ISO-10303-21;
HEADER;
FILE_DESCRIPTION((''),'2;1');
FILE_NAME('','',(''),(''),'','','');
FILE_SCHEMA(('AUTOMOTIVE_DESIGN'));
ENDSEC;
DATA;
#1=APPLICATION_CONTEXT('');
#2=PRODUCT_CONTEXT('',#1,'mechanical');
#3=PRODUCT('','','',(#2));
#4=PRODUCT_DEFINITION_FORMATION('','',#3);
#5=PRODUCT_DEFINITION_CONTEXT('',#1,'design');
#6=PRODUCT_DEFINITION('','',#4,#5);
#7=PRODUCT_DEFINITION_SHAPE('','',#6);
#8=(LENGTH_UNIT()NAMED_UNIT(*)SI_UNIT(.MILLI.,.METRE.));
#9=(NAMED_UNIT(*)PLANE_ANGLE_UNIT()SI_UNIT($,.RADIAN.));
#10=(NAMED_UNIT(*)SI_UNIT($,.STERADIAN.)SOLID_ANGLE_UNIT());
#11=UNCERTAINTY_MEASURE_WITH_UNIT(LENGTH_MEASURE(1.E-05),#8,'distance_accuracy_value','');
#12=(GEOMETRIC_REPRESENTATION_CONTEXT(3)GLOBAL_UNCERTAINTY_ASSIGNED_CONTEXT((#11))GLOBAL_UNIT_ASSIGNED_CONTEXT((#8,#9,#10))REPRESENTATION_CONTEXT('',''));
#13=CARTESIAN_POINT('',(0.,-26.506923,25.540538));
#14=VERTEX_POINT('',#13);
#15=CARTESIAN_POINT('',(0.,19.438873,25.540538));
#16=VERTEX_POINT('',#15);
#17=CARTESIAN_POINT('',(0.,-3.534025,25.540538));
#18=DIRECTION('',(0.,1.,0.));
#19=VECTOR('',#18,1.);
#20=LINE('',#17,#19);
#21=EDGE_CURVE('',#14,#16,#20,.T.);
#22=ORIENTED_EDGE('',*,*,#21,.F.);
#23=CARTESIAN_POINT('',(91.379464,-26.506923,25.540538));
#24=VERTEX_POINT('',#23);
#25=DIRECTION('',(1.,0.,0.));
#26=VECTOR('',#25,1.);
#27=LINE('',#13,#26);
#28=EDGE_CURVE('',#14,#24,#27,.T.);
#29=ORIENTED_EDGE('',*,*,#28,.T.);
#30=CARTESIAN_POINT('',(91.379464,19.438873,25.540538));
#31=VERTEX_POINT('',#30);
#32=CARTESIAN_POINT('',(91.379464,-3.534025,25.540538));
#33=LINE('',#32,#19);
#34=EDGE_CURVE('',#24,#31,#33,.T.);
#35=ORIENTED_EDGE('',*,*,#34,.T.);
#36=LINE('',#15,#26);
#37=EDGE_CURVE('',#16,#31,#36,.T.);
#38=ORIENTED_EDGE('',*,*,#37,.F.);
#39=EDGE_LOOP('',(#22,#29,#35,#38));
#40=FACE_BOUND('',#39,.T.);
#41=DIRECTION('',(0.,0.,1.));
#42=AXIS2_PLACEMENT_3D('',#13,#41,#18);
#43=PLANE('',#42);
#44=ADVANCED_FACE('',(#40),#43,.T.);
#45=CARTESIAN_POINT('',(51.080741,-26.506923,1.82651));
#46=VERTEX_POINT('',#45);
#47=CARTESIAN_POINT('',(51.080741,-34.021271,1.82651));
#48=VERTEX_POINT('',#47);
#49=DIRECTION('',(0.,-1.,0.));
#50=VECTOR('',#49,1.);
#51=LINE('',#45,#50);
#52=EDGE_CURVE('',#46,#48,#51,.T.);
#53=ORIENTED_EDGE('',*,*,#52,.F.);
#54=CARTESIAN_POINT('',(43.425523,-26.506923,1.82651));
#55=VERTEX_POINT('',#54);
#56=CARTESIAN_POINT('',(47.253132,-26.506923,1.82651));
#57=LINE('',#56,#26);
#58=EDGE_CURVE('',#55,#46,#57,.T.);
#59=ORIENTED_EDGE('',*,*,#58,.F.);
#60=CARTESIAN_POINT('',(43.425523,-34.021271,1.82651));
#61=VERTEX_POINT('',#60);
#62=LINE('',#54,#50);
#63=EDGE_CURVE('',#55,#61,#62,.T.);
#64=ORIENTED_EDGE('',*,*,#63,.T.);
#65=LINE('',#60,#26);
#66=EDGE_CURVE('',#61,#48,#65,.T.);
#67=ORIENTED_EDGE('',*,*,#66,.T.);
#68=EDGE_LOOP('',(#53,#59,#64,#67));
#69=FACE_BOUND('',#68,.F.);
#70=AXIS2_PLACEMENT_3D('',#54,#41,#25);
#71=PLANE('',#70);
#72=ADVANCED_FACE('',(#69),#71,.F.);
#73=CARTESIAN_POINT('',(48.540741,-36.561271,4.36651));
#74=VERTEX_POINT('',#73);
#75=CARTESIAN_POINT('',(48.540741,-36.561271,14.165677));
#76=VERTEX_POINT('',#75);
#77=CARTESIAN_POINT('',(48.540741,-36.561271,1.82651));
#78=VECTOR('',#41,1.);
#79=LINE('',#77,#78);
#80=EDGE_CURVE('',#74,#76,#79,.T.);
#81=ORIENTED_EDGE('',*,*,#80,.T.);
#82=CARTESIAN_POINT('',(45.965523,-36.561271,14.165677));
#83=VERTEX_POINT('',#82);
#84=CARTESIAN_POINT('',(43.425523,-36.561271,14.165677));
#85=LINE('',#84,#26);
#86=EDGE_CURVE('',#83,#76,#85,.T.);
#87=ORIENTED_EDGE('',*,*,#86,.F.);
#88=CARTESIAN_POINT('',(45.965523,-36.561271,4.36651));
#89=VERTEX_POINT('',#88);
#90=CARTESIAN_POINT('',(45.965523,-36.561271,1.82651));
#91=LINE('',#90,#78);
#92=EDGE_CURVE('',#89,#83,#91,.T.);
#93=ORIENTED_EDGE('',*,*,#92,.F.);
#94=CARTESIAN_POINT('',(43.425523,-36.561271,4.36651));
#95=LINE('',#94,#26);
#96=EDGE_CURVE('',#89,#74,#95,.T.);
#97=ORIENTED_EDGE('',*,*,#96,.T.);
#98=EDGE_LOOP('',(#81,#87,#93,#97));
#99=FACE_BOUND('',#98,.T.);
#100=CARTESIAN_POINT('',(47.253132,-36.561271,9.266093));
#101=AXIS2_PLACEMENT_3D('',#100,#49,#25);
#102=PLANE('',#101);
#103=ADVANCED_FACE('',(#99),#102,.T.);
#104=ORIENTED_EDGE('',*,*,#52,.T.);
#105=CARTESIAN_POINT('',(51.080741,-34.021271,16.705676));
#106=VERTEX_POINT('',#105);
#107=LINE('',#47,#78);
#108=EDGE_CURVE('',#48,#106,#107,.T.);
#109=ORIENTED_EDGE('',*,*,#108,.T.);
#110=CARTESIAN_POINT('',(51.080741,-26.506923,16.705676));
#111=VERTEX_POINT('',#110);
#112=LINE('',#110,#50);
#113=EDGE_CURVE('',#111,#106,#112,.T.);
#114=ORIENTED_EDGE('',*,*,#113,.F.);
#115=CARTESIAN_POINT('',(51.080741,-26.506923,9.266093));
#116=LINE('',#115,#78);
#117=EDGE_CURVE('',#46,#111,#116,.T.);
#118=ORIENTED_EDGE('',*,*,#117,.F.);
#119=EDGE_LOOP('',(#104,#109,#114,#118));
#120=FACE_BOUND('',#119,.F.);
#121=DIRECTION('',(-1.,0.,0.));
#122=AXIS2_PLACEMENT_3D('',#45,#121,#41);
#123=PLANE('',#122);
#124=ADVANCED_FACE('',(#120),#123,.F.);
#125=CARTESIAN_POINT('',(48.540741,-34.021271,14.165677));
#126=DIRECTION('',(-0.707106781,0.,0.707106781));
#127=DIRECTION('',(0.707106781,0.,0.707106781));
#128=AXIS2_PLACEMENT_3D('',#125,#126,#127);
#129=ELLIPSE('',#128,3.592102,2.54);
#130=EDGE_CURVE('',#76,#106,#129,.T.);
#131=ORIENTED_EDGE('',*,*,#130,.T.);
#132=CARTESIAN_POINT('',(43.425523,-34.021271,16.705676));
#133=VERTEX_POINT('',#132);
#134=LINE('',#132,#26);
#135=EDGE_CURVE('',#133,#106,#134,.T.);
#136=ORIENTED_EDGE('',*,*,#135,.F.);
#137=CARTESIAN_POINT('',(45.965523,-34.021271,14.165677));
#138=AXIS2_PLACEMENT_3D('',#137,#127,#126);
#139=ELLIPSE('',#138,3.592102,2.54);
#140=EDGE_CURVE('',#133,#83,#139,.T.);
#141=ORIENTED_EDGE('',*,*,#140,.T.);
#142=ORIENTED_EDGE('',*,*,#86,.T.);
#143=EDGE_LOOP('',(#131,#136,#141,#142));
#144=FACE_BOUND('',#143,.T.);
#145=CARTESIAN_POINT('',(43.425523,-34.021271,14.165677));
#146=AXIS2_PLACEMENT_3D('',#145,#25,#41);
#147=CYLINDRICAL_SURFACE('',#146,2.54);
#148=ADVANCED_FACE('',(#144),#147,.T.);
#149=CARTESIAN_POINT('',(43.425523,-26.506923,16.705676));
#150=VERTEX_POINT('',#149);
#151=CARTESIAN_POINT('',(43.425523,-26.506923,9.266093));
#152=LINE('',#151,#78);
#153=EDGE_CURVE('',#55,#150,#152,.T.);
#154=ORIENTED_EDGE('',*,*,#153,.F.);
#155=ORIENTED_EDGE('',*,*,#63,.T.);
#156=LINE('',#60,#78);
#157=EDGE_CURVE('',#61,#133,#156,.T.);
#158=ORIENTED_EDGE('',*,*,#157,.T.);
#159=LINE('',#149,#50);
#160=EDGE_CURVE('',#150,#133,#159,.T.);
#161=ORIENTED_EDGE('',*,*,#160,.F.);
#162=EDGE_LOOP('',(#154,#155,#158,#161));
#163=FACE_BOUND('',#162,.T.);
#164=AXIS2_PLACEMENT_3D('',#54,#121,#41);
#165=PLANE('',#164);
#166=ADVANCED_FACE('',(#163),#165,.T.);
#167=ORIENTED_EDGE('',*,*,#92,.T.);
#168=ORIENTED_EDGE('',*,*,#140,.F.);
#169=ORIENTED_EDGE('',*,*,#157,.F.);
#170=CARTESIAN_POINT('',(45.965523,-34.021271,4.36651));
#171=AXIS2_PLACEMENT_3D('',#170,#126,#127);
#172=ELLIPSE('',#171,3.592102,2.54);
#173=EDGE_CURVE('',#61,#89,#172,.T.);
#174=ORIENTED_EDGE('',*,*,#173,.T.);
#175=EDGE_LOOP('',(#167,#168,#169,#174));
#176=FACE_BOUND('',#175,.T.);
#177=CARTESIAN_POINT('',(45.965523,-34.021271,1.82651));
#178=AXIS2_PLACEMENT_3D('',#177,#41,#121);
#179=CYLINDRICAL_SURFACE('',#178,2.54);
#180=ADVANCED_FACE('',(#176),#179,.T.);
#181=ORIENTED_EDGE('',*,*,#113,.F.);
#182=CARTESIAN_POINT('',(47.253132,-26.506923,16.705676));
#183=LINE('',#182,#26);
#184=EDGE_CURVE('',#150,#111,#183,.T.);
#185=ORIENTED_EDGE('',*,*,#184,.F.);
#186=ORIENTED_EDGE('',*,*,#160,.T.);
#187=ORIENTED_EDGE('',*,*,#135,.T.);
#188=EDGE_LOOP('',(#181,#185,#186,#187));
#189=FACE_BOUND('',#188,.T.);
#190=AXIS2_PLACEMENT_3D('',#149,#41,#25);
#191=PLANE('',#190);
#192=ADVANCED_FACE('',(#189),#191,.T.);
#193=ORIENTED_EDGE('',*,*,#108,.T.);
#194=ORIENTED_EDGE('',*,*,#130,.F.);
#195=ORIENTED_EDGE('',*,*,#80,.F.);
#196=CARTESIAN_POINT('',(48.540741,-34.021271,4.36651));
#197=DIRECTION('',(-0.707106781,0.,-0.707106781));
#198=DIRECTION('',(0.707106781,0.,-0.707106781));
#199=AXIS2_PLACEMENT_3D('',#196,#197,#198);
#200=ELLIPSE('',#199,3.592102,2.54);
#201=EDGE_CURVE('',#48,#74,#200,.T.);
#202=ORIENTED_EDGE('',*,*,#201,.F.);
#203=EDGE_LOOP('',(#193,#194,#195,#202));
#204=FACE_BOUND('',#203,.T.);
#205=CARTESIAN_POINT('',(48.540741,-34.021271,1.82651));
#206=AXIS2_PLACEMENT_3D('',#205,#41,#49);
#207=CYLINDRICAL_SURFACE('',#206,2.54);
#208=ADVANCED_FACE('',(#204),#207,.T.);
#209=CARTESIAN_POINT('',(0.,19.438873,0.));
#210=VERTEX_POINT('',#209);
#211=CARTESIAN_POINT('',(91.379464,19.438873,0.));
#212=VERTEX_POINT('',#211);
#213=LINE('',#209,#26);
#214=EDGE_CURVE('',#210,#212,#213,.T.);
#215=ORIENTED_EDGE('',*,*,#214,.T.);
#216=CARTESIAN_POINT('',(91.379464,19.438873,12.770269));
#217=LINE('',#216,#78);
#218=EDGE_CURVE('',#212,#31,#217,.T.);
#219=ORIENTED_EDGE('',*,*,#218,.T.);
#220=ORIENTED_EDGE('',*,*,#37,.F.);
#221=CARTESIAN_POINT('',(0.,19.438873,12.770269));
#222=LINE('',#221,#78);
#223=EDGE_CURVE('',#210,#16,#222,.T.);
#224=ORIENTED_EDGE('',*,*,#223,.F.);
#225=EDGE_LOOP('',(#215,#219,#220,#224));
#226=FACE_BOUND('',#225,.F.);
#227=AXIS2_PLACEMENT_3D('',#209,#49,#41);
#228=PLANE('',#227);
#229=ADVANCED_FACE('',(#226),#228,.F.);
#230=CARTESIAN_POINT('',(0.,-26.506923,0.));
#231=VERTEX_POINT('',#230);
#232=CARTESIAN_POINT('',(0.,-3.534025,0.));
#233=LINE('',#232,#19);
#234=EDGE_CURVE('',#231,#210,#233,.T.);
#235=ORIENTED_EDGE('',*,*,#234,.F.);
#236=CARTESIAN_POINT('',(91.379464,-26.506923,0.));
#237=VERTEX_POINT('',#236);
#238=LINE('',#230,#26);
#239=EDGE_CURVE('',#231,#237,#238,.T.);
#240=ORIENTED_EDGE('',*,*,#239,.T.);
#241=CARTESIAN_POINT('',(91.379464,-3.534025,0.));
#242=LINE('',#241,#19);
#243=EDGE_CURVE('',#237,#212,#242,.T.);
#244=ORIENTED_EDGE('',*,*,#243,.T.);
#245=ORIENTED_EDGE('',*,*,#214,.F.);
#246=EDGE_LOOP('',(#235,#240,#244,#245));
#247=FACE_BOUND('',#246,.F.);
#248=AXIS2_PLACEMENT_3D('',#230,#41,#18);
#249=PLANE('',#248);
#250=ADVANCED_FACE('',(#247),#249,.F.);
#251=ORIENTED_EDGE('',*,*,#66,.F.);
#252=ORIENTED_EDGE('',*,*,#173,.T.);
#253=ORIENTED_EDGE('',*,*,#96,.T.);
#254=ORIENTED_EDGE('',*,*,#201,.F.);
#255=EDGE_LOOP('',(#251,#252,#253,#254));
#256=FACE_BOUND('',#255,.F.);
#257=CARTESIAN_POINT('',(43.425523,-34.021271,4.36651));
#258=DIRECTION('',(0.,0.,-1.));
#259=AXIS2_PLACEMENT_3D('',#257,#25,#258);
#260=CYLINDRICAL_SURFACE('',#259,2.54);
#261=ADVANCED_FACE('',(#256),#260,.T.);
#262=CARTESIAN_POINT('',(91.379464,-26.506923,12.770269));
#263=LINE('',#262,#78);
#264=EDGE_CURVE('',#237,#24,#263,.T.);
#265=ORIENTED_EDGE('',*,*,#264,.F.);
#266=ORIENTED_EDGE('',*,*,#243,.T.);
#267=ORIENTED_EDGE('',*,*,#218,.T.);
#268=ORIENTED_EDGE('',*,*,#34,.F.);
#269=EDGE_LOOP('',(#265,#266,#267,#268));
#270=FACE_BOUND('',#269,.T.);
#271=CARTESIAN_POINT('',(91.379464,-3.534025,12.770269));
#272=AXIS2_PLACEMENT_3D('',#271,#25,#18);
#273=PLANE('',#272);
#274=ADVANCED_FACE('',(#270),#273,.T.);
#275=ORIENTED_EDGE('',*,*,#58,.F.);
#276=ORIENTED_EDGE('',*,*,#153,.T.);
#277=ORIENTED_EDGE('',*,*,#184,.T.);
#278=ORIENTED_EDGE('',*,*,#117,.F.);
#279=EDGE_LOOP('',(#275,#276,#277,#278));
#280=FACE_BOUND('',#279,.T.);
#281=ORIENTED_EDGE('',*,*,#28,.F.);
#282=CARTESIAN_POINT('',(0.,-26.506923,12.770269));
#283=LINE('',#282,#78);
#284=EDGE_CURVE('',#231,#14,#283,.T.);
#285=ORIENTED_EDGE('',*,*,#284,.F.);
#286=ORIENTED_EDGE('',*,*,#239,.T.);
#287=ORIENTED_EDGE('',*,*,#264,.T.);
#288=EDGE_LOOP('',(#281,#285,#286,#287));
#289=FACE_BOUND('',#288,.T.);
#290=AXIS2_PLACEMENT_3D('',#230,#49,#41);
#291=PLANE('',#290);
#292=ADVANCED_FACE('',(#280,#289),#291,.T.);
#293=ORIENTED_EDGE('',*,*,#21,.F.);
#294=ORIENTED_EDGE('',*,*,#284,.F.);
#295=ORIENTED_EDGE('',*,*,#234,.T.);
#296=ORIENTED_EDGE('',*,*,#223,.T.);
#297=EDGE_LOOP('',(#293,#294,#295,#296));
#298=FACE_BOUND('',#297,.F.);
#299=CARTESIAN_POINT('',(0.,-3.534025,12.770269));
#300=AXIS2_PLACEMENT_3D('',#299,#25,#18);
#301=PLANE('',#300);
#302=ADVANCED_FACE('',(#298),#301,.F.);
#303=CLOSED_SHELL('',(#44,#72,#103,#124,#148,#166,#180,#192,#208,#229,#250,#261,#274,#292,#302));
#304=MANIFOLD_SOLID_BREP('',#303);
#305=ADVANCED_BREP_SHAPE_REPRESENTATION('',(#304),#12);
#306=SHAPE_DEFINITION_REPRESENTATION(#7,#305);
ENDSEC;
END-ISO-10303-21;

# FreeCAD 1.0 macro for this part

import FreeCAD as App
import Part
import Sketcher


def edges_at(feature, points):
    """Names of the edges that pass closest to the given points."""
    edges = feature.Shape.Edges
    near = lambda p: min(range(len(edges)), key=lambda i: edges[i].distToShape(Part.Vertex(*p))[0])
    return sorted({f"Edge{near(p) + 1}" for p in points})

doc = App.newDocument("Part")
params = doc.addObject("Spreadsheet::Sheet", "Params")
for row, (alias, value) in enumerate([
    ("pad1_length", "91.379464 mm"),
    ("pad2_length", "10.054348 mm"),
    ("fillet_radius", "0.1 in"),
], start=1):
    params.set(f"A{row}", alias)
    params.set(f"B{row}", "=" + value)
    params.setAlias(f"B{row}", alias)

body = doc.addObject("PartDesign::Body", "Body")

sketch1 = doc.addObject("Sketcher::SketchObject", "Sketch")
body.addObject(sketch1)
sketch1.AttachmentSupport = (doc.YZ_Plane, [""])
sketch1.MapMode = "FlatFace"
sketch1.addGeometry(Part.LineSegment(App.Vector(-27, 26, 0), App.Vector(-27, 0, 0)), False)
sketch1.addGeometry(Part.LineSegment(App.Vector(-27, 0, 0), App.Vector(19, 0, 0)), False)
sketch1.addGeometry(Part.LineSegment(App.Vector(19, 0, 0), App.Vector(19, 26, 0)), False)
sketch1.addGeometry(Part.LineSegment(App.Vector(19, 26, 0), App.Vector(-27, 26, 0)), False)
sketch1.addConstraint(Sketcher.Constraint("Coincident", 0, 2, 1, 1))
sketch1.addConstraint(Sketcher.Constraint("Coincident", 1, 2, 2, 1))
sketch1.addConstraint(Sketcher.Constraint("Coincident", 2, 2, 3, 1))
sketch1.addConstraint(Sketcher.Constraint("Coincident", 3, 2, 0, 1))
sketch1.addConstraint(Sketcher.Constraint("Vertical", 0))
sketch1.addConstraint(Sketcher.Constraint("Horizontal", 1))
sketch1.addConstraint(Sketcher.Constraint("Vertical", 2))
sketch1.addConstraint(Sketcher.Constraint("Horizontal", 3))
sketch1.addConstraint(Sketcher.Constraint("PointOnObject", 0, 2, -1))
sketch1.addConstraint(Sketcher.Constraint("DistanceY", 0, 2, 0, 1, 25.540538))
sketch1.addConstraint(Sketcher.Constraint("DistanceX", 1, 1, 1, 2, 45.945797))
sketch1.addConstraint(Sketcher.Constraint("DistanceX", 0, 2, -1, 1, 26.506923))
pad1 = doc.addObject("PartDesign::Pad", "Pad")
body.addObject(pad1)
pad1.Profile = sketch1
pad1.setExpression("Length", "Params.pad1_length")

sketch2 = doc.addObject("Sketcher::SketchObject", "Sketch001")
body.addObject(sketch2)
sketch2.AttachmentSupport = (doc.XZ_Plane, [""])
sketch2.MapMode = "FlatFace"
sketch2.AttachmentOffset = App.Placement(App.Vector(0, 0, 26.506923), App.Rotation())
sketch2.addGeometry(Part.LineSegment(App.Vector(43, 17, 0), App.Vector(43, 2, 0)), False)
sketch2.addGeometry(Part.LineSegment(App.Vector(43, 2, 0), App.Vector(51, 2, 0)), False)
sketch2.addGeometry(Part.LineSegment(App.Vector(51, 2, 0), App.Vector(51, 17, 0)), False)
sketch2.addGeometry(Part.LineSegment(App.Vector(51, 17, 0), App.Vector(43, 17, 0)), False)
sketch2.addConstraint(Sketcher.Constraint("Coincident", 0, 2, 1, 1))
sketch2.addConstraint(Sketcher.Constraint("Coincident", 1, 2, 2, 1))
sketch2.addConstraint(Sketcher.Constraint("Coincident", 2, 2, 3, 1))
sketch2.addConstraint(Sketcher.Constraint("Coincident", 3, 2, 0, 1))
sketch2.addConstraint(Sketcher.Constraint("Vertical", 0))
sketch2.addConstraint(Sketcher.Constraint("Horizontal", 1))
sketch2.addConstraint(Sketcher.Constraint("Vertical", 2))
sketch2.addConstraint(Sketcher.Constraint("Horizontal", 3))
sketch2.addConstraint(Sketcher.Constraint("DistanceX", 1, 1, 1, 2, 7.655218))
sketch2.addConstraint(Sketcher.Constraint("DistanceY", 0, 2, 0, 1, 14.879167))
sketch2.addConstraint(Sketcher.Constraint("DistanceY", -1, 1, 0, 2, 1.82651))
sketch2.addConstraint(Sketcher.Constraint("DistanceX", -1, 1, 1, 2, 51.080741))
pad2 = doc.addObject("PartDesign::Pad", "Pad001")
body.addObject(pad2)
pad2.Profile = sketch2
pad2.setExpression("Length", "Params.pad2_length")
doc.recompute()

fillet = doc.addObject("PartDesign::Fillet", "Fillet")
body.addObject(fillet)
fillet.Base = (pad2, edges_at(pad2, [
    (43.426, -36.561, 9.266),
    (47.253, -36.561, 1.827),
    (51.081, -36.561, 9.266),
    (47.253, -36.561, 16.706),
]))
fillet.setExpression("Radius", "Params.fillet_radius")

doc.recompute()
